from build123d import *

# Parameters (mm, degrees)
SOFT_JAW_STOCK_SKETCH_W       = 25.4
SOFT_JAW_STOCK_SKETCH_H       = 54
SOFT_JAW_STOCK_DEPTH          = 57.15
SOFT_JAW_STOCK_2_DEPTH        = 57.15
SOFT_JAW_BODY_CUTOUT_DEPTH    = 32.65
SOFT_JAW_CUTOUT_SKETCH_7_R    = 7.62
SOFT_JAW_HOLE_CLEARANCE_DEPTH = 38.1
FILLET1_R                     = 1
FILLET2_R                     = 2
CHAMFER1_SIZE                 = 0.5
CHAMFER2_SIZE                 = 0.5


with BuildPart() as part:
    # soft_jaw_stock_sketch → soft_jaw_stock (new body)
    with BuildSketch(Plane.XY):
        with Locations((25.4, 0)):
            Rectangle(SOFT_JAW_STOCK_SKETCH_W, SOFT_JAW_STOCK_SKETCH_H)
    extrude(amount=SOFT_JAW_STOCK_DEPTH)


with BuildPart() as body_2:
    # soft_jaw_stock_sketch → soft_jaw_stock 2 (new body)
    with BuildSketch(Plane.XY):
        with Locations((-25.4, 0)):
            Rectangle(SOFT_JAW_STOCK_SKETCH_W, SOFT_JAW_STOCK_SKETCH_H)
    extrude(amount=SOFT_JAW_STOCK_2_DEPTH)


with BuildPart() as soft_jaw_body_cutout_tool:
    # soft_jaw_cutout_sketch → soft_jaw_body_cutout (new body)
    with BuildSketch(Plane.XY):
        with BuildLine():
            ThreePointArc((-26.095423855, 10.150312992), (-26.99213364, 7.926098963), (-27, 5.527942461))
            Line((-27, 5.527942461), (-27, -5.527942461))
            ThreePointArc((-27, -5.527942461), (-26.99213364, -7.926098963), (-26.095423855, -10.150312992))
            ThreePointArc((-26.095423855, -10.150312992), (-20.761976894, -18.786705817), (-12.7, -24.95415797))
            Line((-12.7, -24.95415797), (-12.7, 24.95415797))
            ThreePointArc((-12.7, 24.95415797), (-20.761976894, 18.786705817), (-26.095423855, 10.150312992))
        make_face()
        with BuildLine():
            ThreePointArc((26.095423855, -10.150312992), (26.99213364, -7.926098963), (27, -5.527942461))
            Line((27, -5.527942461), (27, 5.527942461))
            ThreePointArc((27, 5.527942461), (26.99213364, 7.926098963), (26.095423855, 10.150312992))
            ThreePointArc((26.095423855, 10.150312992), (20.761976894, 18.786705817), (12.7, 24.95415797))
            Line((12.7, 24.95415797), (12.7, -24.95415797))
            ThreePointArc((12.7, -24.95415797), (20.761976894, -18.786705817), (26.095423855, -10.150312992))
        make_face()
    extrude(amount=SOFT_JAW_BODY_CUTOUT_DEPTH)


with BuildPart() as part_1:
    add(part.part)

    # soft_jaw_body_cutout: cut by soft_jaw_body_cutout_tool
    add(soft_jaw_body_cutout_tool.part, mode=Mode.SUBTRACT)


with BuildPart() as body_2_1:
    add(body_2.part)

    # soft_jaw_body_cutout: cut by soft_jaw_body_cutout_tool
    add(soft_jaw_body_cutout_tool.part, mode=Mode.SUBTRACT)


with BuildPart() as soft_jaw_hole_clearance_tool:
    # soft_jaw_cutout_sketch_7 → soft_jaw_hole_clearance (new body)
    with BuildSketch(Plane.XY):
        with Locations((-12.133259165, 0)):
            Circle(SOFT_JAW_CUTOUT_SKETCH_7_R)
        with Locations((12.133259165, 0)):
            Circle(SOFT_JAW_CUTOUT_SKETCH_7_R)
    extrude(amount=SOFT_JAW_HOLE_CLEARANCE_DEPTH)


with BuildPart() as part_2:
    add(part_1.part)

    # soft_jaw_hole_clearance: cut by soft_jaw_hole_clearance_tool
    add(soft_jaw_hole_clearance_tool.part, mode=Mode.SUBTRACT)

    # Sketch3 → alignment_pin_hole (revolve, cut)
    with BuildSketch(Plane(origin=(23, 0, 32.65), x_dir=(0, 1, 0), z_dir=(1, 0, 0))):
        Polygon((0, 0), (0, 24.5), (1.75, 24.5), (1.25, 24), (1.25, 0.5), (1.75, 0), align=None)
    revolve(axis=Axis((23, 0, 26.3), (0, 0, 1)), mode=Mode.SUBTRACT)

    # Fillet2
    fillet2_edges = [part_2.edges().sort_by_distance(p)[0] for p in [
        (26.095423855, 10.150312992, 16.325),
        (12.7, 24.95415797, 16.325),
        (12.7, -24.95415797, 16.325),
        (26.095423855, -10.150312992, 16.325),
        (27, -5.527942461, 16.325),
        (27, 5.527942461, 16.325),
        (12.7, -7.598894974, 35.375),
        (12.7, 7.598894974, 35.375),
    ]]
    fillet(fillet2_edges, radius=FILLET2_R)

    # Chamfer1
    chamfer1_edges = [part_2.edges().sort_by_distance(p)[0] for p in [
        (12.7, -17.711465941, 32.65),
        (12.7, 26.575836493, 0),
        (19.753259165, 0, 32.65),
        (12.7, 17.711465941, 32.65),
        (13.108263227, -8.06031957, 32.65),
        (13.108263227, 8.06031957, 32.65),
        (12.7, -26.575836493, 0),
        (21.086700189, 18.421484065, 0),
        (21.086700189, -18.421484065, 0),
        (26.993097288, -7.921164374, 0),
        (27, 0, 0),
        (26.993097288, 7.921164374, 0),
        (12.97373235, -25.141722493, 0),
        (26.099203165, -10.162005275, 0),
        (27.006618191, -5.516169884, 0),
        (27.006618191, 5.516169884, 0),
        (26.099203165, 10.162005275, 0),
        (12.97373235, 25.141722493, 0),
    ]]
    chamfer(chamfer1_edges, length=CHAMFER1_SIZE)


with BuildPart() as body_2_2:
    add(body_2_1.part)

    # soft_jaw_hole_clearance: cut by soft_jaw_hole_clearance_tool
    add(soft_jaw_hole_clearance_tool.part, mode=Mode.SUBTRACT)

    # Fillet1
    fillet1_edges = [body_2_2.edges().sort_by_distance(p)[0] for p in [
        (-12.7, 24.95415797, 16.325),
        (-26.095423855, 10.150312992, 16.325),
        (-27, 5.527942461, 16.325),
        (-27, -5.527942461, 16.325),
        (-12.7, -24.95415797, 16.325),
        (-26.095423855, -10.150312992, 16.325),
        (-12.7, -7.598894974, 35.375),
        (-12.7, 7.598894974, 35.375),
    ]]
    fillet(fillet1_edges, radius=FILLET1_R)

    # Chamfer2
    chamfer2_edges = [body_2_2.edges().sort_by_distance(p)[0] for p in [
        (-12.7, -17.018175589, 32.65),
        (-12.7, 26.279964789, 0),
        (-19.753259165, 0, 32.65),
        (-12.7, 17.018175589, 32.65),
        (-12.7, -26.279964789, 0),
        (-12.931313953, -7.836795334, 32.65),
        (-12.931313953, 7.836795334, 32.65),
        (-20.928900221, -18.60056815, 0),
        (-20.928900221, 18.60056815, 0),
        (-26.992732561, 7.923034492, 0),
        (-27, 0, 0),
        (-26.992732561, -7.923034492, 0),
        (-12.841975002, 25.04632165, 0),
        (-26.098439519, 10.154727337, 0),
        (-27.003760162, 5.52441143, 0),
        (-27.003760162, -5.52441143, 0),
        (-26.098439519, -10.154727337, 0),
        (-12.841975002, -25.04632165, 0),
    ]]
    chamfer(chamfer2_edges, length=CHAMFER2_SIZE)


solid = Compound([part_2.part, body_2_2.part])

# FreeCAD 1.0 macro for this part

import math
import FreeCAD as App
import Part
import Sketcher

V = App.Vector
Q = App.Units.Quantity


def edges_at(feature, points):
    """Names of the edges that pass closest to the given points."""
    edges = feature.Shape.Edges
    near = lambda p: min(range(len(edges)), key=lambda i: edges[i].distToShape(Part.Vertex(*p))[0])
    return sorted({f"Edge{near(p) + 1}" for p in points})


def add_polygon(sketch, points):
    """Adds a closed chain of lines whose ends are joined by coincident constraints."""
    first, n = sketch.GeometryCount, len(points)
    for a, b in zip(points, points[1:] + points[:1]):
        sketch.addGeometry(Part.LineSegment(App.Vector(*a, 0), App.Vector(*b, 0)), False)
    for i in range(n):
        sketch.addConstraint(Sketcher.Constraint("Coincident", first + i, 2, first + (i + 1) % n, 1))

doc = App.newDocument("Part")
body = doc.addObject("PartDesign::Body", "Body")

# Sketch on XY plane
sketch1 = doc.addObject("Sketcher::SketchObject", "Sketch")
body.addObject(sketch1)
sketch1.AttachmentSupport = (doc.XY_Plane, [""])
sketch1.MapMode = "FlatFace"
add_polygon(sketch1, [(13, 27), (13, -27), (38, -27), (38, 27)])  # lines 0-3
sketch1.addConstraint(Sketcher.Constraint("Vertical", 0))
sketch1.addConstraint(Sketcher.Constraint("Horizontal", 1))
sketch1.addConstraint(Sketcher.Constraint("Vertical", 2))
sketch1.addConstraint(Sketcher.Constraint("Horizontal", 3))
sketch1.addConstraint(Sketcher.Constraint("DistanceY", 0, 2, 0, 1, Q("54 mm")))
sketch1.addConstraint(Sketcher.Constraint("DistanceX", 1, 1, 1, 2, Q("25.4 mm")))
sketch1.addConstraint(Sketcher.Constraint("DistanceY", 0, 2, -1, 1, Q("27 mm")))
sketch1.addConstraint(Sketcher.Constraint("DistanceX", -1, 1, 0, 2, Q("12.7 mm")))
pad1 = doc.addObject("PartDesign::Pad", "Pad")
body.addObject(pad1)
pad1.Profile = sketch1
pad1.Length = 57.15
body2 = doc.addObject("PartDesign::Body", "Body001")

# Sketch on XY plane
sketch2 = doc.addObject("Sketcher::SketchObject", "Sketch001")
body2.addObject(sketch2)
sketch2.AttachmentSupport = (doc.getObject("XY_Plane001"), [""])
sketch2.MapMode = "FlatFace"
add_polygon(sketch2, [(-38, 27), (-38, -27), (-13, -27), (-13, 27)])  # lines 0-3
sketch2.addConstraint(Sketcher.Constraint("Vertical", 0))
sketch2.addConstraint(Sketcher.Constraint("Horizontal", 1))
sketch2.addConstraint(Sketcher.Constraint("Vertical", 2))
sketch2.addConstraint(Sketcher.Constraint("Horizontal", 3))
sketch2.addConstraint(Sketcher.Constraint("DistanceY", 0, 2, 0, 1, Q("54 mm")))
sketch2.addConstraint(Sketcher.Constraint("DistanceX", 1, 1, 1, 2, Q("25.4 mm")))
sketch2.addConstraint(Sketcher.Constraint("DistanceY", 0, 2, -1, 1, Q("27 mm")))
sketch2.addConstraint(Sketcher.Constraint("DistanceX", 0, 2, -1, 1, Q("38.1 mm")))
pad2 = doc.addObject("PartDesign::Pad", "Pad001")
body2.addObject(pad2)
pad2.Profile = sketch2
pad2.Length = 57.15
body3 = doc.addObject("PartDesign::Body", "Body002")
body3.AllowCompound = True

# Sketch on XY plane
sketch3 = doc.addObject("Sketcher::SketchObject", "Sketch002")
body3.addObject(sketch3)
sketch3.AttachmentSupport = (doc.getObject("XY_Plane002"), [""])
sketch3.MapMode = "FlatFace"
sketch3.addGeometry(Part.ArcOfCircle(Part.Circle(V(-20.8, 6.7, 0), V(0, 0, 1), 6.4), math.radians(147), math.radians(191)), False)
sketch3.addGeometry(Part.LineSegment(V(-27, 5.5, 0), V(-27, -5.5, 0)), False)
sketch3.addGeometry(Part.ArcOfCircle(Part.Circle(V(-20.8, -6.7, 0), V(0, 0, 1), 6.4), math.radians(169), math.radians(213)), False)
sketch3.addGeometry(Part.ArcOfCircle(Part.Circle(V(0, 0, 0), V(0, 0, 1), 28), math.radians(-159), math.radians(-117)), False)
sketch3.addGeometry(Part.LineSegment(V(-12.7, -25, 0), V(-12.7, 25, 0)), False)
sketch3.addGeometry(Part.ArcOfCircle(Part.Circle(V(0, 0, 0), V(0, 0, 1), 28), math.radians(117), math.radians(159)), False)
sketch3.addGeometry(Part.ArcOfCircle(Part.Circle(V(20.8, -6.7, 0), V(0, 0, 1), 6.4), math.radians(-33), math.radians(11)), False)
sketch3.addGeometry(Part.LineSegment(V(27, -5.5, 0), V(27, 5.5, 0)), False)
sketch3.addGeometry(Part.ArcOfCircle(Part.Circle(V(20.8, 6.7, 0), V(0, 0, 1), 6.4), math.radians(-11), math.radians(33)), False)
sketch3.addGeometry(Part.ArcOfCircle(Part.Circle(V(0, 0, 0), V(0, 0, 1), 28), math.radians(21), math.radians(63)), False)
sketch3.addGeometry(Part.LineSegment(V(12.7, 25, 0), V(12.7, -25, 0)), False)
sketch3.addGeometry(Part.ArcOfCircle(Part.Circle(V(0, 0, 0), V(0, 0, 1), 28), math.radians(-63), math.radians(-21)), False)
sketch3.addConstraint(Sketcher.Constraint("Coincident", 0, 2, 1, 1))
sketch3.addConstraint(Sketcher.Constraint("Coincident", 1, 2, 2, 1))
sketch3.addConstraint(Sketcher.Constraint("Coincident", 2, 2, 3, 1))
sketch3.addConstraint(Sketcher.Constraint("Coincident", 3, 2, 4, 1))
sketch3.addConstraint(Sketcher.Constraint("Coincident", 4, 2, 5, 1))
sketch3.addConstraint(Sketcher.Constraint("Coincident", 5, 2, 0, 1))
sketch3.addConstraint(Sketcher.Constraint("Coincident", 6, 2, 7, 1))
sketch3.addConstraint(Sketcher.Constraint("Coincident", 7, 2, 8, 1))
sketch3.addConstraint(Sketcher.Constraint("Coincident", 8, 2, 9, 1))
sketch3.addConstraint(Sketcher.Constraint("Coincident", 9, 2, 10, 1))
sketch3.addConstraint(Sketcher.Constraint("Coincident", 10, 2, 11, 1))
sketch3.addConstraint(Sketcher.Constraint("Coincident", 11, 2, 6, 1))
sketch3.addConstraint(Sketcher.Constraint("Vertical", 1))
sketch3.addConstraint(Sketcher.Constraint("Vertical", 4))
sketch3.addConstraint(Sketcher.Constraint("Vertical", 7))
sketch3.addConstraint(Sketcher.Constraint("Vertical", 10))
sketch3.addConstraint(Sketcher.Constraint("Coincident", 3, 3, -1, 1))
sketch3.addConstraint(Sketcher.Constraint("Coincident", 5, 3, -1, 1))
sketch3.addConstraint(Sketcher.Constraint("Coincident", 9, 3, -1, 1))
sketch3.addConstraint(Sketcher.Constraint("Coincident", 11, 3, -1, 1))
sketch3.addConstraint(Sketcher.Constraint("Equal", 0, 2))
sketch3.addConstraint(Sketcher.Constraint("Equal", 3, 5))
sketch3.addConstraint(Sketcher.Constraint("Equal", 2, 6))
sketch3.addConstraint(Sketcher.Constraint("Equal", 6, 8))
sketch3.addConstraint(Sketcher.Constraint("Equal", 5, 9))
sketch3.addConstraint(Sketcher.Constraint("Equal", 9, 11))
sketch3.addConstraint(Sketcher.Constraint("Symmetric", 0, 3, 6, 3, -1, 1))
sketch3.addConstraint(Sketcher.Constraint("Symmetric", 2, 3, 8, 3, -1, 1))
sketch3.addConstraint(Sketcher.Constraint("Symmetric", 2, 3, 6, 3, -2))
sketch3.addConstraint(Sketcher.Constraint("Horizontal", 1, 2, 6, 2))
sketch3.addConstraint(Sketcher.Constraint("Horizontal", 4, 2, 9, 2))
sketch3.addConstraint(Sketcher.Constraint("Radius", 3, Q("28 mm")))
sketch3.addConstraint(Sketcher.Constraint("Radius", 0, Q("6.35 mm")))
sketch3.addConstraint(Sketcher.Constraint("DistanceX", 0, 2, -1, 1, Q("27 mm")))
sketch3.addConstraint(Sketcher.Constraint("DistanceX", 3, 2, -1, 1, Q("12.7 mm")))
sketch3.addConstraint(Sketcher.Constraint("DistanceY", 1, 2, 1, 1, Q("11.055885 mm")))
sketch3.addConstraint(Sketcher.Constraint("DistanceX", 0, 3, -1, 1, Q("20.760341 mm")))
pad3 = doc.addObject("PartDesign::Pad", "Pad002")
body3.addObject(pad3)
pad3.Profile = sketch3
pad3.Length = 32.65
doc.recompute()

body4 = doc.addObject("PartDesign::Body", "Body003")
body4.BaseFeature = body3
boolean = doc.addObject("PartDesign::Boolean", "Boolean")
body.addObject(boolean)
boolean.Type = "Cut"
boolean.addObjects([body4])
doc.recompute()

boolean2 = doc.addObject("PartDesign::Boolean", "Boolean001")
body2.addObject(boolean2)
boolean2.Type = "Cut"
boolean2.addObjects([body3])
body5 = doc.addObject("PartDesign::Body", "Body004")
body5.AllowCompound = True

# Sketch on XY plane
sketch4 = doc.addObject("Sketcher::SketchObject", "Sketch003")
body5.addObject(sketch4)
sketch4.AttachmentSupport = (doc.getObject("XY_Plane004"), [""])
sketch4.MapMode = "FlatFace"
sketch4.addGeometry(Part.Circle(V(-12, 0, 0), V(0, 0, 1), 8), False)
sketch4.addGeometry(Part.Circle(V(12, 0, 0), V(0, 0, 1), 8), False)
sketch4.addConstraint(Sketcher.Constraint("Equal", 0, 1))
sketch4.addConstraint(Sketcher.Constraint("Symmetric", 0, 3, 1, 3, -1, 1))
sketch4.addConstraint(Sketcher.Constraint("PointOnObject", 0, 3, -1))
sketch4.addConstraint(Sketcher.Constraint("Diameter", 0, Q("15.24 mm")))
sketch4.addConstraint(Sketcher.Constraint("DistanceX", 0, 3, -1, 1, Q("12.133259 mm")))
pad4 = doc.addObject("PartDesign::Pad", "Pad003")
body5.addObject(pad4)
pad4.Profile = sketch4
pad4.Length = 38.1
doc.recompute()

body6 = doc.addObject("PartDesign::Body", "Body005")
body6.BaseFeature = body5
boolean3 = doc.addObject("PartDesign::Boolean", "Boolean002")
body.addObject(boolean3)
boolean3.Type = "Cut"
boolean3.addObjects([body6])
doc.recompute()

# Sketch on YZ plane
sketch5 = doc.addObject("Sketcher::SketchObject", "Sketch004")
body.addObject(sketch5)
sketch5.AttachmentSupport = (doc.YZ_Plane, [""])
sketch5.MapMode = "FlatFace"
sketch5.AttachmentOffset = App.Placement(V(0, 0, 23), App.Rotation())
add_polygon(sketch5, [(0, 57.1), (0, 32.6), (1.8, 32.6), (1.2, 33.1), (1.2, 56.6), (1.8, 57.1)])  # lines 0-5
sketch5.addConstraint(Sketcher.Constraint("Vertical", 0))
sketch5.addConstraint(Sketcher.Constraint("Horizontal", 1))
sketch5.addConstraint(Sketcher.Constraint("Vertical", 3))
sketch5.addConstraint(Sketcher.Constraint("Horizontal", 5))
sketch5.addConstraint(Sketcher.Constraint("PointOnObject", 0, 2, -2))
sketch5.addConstraint(Sketcher.Constraint("Perpendicular", 2, 4))
sketch5.addConstraint(Sketcher.Constraint("Vertical", 1, 2, 4, 2))
sketch5.addConstraint(Sketcher.Constraint("Equal", 2, 4))
sketch5.addConstraint(Sketcher.Constraint("DistanceY", 0, 2, 0, 1, Q("24.5 mm")))
sketch5.addConstraint(Sketcher.Constraint("DistanceY", 3, 1, 3, 2, Q("23.5 mm")))
sketch5.addConstraint(Sketcher.Constraint("DistanceX", 1, 1, 1, 2, Q("1.75 mm")))
sketch5.addConstraint(Sketcher.Constraint("DistanceY", -1, 1, 0, 2, Q("32.65 mm")))
groove = doc.addObject("PartDesign::Groove", "Groove")
body.addObject(groove)
groove.Profile = sketch5
groove.ReferenceAxis = (sketch5, ["V_Axis"])
groove.Angle = 360
doc.recompute()

fillet = doc.addObject("PartDesign::Fillet", "Fillet")
body.addObject(fillet)
fillet.Base = (groove, edges_at(groove, [
    (26.095, 10.15, 16.325),
    (12.7, 24.954, 16.325),
    (12.7, -24.954, 16.325),
    (26.095, -10.15, 16.325),
    (27, -5.528, 16.325),
    (27, 5.528, 16.325),
    (12.7, -7.599, 35.375),
    (12.7, 7.599, 35.375),
]))
fillet.Radius = 2
doc.recompute()

chamfer = doc.addObject("PartDesign::Chamfer", "Chamfer")
body.addObject(chamfer)
chamfer.Base = (fillet, edges_at(fillet, [
    (12.7, -17.711, 32.65),
    (12.7, 26.576, 0),
    (19.753, 0, 32.65),
    (12.7, 17.711, 32.65),
    (13.108, -8.06, 32.65),
    (13.108, 8.06, 32.65),
    (12.7, -26.576, 0),
    (21.087, 18.421, 0),
    (21.087, -18.421, 0),
    (26.993, -7.921, 0),
    (27, 0, 0),
    (26.993, 7.921, 0),
    (12.974, -25.142, 0),
    (26.099, -10.162, 0),
    (27.007, -5.516, 0),
    (27.007, 5.516, 0),
    (26.099, 10.162, 0),
    (12.974, 25.142, 0),
]))
chamfer.Size = 0.5
doc.recompute()

boolean4 = doc.addObject("PartDesign::Boolean", "Boolean003")
body2.addObject(boolean4)
boolean4.Type = "Cut"
boolean4.addObjects([body5])
doc.recompute()

fillet2 = doc.addObject("PartDesign::Fillet", "Fillet001")
body2.addObject(fillet2)
fillet2.Base = (boolean4, edges_at(boolean4, [
    (-12.7, 24.954, 16.325),
    (-26.095, 10.15, 16.325),
    (-27, 5.528, 16.325),
    (-27, -5.528, 16.325),
    (-12.7, -24.954, 16.325),
    (-26.095, -10.15, 16.325),
    (-12.7, -7.599, 35.375),
    (-12.7, 7.599, 35.375),
]))
fillet2.Radius = 1
doc.recompute()

chamfer2 = doc.addObject("PartDesign::Chamfer", "Chamfer001")
body2.addObject(chamfer2)
chamfer2.Base = (fillet2, edges_at(fillet2, [
    (-12.7, -17.018, 32.65),
    (-12.7, 26.28, 0),
    (-19.753, 0, 32.65),
    (-12.7, 17.018, 32.65),
    (-12.7, -26.28, 0),
    (-12.931, -7.837, 32.65),
    (-12.931, 7.837, 32.65),
    (-20.929, -18.601, 0),
    (-20.929, 18.601, 0),
    (-26.993, 7.923, 0),
    (-27, 0, 0),
    (-26.993, -7.923, 0),
    (-12.842, 25.046, 0),
    (-26.098, 10.155, 0),
    (-27.004, 5.524, 0),
    (-27.004, -5.524, 0),
    (-26.098, -10.155, 0),
    (-12.842, -25.046, 0),
]))
chamfer2.Size = 0.5

doc.recompute()
